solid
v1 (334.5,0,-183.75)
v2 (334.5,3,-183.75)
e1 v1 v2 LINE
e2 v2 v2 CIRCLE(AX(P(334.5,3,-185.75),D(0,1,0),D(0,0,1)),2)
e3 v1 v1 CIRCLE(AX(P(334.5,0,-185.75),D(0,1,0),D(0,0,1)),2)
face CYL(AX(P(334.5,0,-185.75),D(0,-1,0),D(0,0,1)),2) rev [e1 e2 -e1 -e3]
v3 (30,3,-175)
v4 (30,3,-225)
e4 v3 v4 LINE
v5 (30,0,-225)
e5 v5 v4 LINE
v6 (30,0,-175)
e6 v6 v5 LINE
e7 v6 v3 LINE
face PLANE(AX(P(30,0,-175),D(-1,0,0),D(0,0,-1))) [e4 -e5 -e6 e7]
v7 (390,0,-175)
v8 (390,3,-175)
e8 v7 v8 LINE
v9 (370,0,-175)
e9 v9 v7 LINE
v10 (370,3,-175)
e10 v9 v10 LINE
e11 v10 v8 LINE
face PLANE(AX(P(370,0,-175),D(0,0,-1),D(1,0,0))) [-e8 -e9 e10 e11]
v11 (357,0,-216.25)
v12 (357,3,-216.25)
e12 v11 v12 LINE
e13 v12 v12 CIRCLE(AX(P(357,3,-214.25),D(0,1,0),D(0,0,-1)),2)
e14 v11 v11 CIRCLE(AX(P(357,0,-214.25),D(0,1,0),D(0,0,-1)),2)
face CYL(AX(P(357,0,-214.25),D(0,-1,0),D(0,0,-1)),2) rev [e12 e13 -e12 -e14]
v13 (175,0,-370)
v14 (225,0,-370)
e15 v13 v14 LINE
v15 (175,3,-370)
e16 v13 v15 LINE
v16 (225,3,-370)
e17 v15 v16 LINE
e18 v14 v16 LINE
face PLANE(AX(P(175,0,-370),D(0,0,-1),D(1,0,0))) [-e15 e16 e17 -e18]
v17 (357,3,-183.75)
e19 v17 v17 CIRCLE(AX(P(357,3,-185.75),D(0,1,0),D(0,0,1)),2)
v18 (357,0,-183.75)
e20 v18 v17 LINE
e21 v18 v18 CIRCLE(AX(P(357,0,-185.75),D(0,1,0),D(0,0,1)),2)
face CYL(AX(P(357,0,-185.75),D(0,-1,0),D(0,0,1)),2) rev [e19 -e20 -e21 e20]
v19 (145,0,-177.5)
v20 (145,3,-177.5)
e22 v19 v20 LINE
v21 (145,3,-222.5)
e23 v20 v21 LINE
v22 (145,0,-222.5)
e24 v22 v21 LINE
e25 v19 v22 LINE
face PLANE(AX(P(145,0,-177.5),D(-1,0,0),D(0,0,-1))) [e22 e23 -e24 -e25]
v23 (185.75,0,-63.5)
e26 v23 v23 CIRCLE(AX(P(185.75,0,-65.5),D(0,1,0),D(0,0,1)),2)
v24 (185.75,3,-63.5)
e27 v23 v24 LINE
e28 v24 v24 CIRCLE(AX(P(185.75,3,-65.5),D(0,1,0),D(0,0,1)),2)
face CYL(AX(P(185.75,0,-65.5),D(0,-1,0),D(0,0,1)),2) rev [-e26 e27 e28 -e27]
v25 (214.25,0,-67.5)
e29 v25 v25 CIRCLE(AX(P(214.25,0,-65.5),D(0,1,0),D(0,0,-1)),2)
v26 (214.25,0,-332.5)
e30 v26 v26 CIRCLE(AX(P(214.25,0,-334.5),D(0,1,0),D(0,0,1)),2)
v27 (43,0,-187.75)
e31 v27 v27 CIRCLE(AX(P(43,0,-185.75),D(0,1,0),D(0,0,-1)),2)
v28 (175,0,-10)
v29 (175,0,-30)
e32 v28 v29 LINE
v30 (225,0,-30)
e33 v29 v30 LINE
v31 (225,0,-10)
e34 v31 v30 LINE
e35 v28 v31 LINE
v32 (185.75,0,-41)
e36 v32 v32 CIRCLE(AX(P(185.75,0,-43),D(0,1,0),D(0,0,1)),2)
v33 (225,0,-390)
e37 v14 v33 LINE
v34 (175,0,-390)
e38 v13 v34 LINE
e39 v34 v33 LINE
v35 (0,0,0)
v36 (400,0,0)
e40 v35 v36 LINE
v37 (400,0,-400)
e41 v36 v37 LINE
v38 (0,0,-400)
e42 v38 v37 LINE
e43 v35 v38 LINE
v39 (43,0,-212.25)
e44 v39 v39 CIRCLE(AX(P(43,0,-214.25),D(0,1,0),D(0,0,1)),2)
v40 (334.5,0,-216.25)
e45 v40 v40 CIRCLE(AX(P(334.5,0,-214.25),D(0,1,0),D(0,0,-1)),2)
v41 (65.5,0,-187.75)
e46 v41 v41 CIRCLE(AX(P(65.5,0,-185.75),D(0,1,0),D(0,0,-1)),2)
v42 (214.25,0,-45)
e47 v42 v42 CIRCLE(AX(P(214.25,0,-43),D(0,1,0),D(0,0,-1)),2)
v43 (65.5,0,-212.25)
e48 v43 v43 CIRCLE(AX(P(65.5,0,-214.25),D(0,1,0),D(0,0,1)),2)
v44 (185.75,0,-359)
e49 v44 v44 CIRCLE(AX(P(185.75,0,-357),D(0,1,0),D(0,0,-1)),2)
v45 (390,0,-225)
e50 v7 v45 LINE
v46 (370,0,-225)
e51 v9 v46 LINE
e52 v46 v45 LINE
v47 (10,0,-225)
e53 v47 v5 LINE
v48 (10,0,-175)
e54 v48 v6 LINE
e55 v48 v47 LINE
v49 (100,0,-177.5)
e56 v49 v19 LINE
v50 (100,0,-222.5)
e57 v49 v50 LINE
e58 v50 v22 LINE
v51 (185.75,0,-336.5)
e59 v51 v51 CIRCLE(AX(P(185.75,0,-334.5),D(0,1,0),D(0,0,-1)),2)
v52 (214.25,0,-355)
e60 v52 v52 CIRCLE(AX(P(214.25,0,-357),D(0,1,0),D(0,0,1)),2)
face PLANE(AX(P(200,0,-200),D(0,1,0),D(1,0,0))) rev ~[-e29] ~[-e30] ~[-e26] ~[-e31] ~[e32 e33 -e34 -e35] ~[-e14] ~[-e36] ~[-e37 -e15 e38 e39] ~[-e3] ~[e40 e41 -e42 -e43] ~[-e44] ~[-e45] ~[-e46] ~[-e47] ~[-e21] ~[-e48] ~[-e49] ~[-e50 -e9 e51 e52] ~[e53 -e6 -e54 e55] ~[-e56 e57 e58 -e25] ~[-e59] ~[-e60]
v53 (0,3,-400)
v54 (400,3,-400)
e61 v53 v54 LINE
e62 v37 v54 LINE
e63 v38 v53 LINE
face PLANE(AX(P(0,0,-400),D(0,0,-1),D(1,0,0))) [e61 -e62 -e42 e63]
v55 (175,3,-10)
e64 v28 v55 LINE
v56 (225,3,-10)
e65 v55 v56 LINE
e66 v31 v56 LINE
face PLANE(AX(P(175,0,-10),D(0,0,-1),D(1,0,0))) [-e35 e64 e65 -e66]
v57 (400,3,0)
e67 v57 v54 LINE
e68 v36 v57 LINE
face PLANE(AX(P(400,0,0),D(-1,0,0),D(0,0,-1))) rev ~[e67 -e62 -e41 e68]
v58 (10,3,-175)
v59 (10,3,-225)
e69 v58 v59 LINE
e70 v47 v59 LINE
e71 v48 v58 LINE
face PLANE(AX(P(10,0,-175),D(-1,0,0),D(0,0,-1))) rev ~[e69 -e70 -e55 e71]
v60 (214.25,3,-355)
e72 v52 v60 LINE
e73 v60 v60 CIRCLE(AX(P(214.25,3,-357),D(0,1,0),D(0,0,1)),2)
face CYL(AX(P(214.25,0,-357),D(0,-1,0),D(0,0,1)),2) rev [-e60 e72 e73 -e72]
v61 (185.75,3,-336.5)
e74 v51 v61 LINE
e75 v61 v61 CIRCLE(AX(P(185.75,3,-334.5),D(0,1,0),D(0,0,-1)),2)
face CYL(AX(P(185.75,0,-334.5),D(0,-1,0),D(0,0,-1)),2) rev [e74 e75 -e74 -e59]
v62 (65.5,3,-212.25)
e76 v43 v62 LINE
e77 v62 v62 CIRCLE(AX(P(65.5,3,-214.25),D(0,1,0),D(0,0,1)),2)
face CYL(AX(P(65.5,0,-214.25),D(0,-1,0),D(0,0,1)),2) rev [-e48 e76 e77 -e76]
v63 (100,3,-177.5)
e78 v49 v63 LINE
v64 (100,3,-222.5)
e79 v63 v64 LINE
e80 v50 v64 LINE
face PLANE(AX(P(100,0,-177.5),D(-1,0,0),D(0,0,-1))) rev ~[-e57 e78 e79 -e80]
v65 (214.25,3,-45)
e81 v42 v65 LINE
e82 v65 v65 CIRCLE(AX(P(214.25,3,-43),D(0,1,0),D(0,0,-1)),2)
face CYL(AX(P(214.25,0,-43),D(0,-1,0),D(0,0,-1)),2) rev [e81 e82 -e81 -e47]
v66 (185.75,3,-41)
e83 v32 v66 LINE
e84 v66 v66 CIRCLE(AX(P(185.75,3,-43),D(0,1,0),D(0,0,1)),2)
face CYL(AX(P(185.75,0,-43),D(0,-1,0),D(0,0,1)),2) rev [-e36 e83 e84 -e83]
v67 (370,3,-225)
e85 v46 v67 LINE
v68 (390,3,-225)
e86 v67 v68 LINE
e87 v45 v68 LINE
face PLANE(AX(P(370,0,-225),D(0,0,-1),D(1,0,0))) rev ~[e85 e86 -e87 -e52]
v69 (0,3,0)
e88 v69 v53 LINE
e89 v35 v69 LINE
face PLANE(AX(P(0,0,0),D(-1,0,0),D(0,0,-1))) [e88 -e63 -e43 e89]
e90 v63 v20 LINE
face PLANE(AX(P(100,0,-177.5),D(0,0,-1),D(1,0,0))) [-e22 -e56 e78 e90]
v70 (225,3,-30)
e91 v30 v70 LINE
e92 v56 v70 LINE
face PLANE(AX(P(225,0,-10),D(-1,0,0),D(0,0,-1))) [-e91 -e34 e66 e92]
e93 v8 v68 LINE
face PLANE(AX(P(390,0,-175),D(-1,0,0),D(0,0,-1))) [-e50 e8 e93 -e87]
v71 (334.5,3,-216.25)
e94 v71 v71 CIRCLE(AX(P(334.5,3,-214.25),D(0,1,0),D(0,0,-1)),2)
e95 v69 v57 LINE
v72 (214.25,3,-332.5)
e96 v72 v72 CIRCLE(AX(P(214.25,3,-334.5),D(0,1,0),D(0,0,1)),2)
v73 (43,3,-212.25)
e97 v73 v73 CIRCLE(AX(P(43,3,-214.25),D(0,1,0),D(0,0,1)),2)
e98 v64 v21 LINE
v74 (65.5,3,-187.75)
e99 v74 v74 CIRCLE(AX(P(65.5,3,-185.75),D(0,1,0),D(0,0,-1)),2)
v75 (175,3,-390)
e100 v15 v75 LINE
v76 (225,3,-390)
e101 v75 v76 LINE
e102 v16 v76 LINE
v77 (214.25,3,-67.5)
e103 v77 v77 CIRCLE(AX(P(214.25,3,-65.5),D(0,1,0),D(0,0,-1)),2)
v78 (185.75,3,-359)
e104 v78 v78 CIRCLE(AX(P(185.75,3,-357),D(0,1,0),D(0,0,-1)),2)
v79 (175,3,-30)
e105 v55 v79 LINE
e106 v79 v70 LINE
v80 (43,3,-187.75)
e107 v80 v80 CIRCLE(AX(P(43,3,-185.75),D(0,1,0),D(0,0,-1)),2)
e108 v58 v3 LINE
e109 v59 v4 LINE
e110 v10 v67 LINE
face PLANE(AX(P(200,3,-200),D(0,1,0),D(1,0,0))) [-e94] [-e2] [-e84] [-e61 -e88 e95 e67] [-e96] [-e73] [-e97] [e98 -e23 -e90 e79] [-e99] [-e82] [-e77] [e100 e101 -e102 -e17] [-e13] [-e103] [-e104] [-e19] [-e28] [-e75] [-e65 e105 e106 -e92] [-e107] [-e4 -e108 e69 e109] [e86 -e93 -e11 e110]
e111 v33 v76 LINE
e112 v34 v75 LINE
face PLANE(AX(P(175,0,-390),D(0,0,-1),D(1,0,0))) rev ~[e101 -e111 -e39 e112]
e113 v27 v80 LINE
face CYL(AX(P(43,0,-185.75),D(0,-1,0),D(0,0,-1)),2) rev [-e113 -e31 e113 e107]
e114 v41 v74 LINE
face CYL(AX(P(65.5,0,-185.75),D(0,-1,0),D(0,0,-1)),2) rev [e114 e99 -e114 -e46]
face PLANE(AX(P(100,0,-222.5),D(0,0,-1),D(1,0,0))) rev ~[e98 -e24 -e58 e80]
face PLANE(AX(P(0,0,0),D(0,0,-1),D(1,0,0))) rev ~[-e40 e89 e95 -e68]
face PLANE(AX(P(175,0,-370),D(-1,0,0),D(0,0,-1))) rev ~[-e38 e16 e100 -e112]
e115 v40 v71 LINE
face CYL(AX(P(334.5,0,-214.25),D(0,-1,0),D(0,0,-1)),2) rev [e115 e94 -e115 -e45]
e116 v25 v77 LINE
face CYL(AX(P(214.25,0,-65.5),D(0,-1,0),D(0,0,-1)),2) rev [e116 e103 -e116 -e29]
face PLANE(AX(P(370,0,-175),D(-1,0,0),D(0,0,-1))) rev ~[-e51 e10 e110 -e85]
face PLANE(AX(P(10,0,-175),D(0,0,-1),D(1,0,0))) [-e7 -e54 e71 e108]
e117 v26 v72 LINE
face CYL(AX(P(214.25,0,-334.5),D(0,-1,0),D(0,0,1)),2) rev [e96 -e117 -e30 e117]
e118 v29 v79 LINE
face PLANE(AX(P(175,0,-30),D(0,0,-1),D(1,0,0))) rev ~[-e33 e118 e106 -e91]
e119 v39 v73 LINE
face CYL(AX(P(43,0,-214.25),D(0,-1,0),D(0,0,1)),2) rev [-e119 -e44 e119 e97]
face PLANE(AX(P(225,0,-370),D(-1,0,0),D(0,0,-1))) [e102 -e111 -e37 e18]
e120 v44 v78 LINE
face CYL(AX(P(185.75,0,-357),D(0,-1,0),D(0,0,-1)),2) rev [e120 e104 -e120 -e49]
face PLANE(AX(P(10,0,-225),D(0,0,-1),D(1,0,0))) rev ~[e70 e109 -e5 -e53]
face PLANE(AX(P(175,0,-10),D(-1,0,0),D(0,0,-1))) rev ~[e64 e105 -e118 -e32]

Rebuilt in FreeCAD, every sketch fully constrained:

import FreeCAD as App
import Part
import Sketcher
Q = App.Units.Quantity


def add_polygon(sketch, points):
    """Adds a closed chain of lines whose ends are joined by coincident constraints."""
    first, n = sketch.GeometryCount, len(points)
    for a, b in zip(points, points[1:] + points[:1]):
        sketch.addGeometry(Part.LineSegment(App.Vector(*a, 0), App.Vector(*b, 0)), False)
    for i in range(n):
        sketch.addConstraint(Sketcher.Constraint("Coincident", first + i, 2, first + (i + 1) % n, 1))

doc = App.newDocument("Part")
body = doc.addObject("PartDesign::Body", "Body")

sketch1 = body.newObject("Sketcher::SketchObject", "Sketch")
sketch1.AttachmentSupport = (doc.getObject("XZ_Plane"), [""])
sketch1.MapMode = "FlatFace"
add_polygon(sketch1, [(0, -400), (0, 0), (400, 0), (400, -400)])
sketch1.addGeometry(Part.Circle(App.Vector(185.8, -43, 0), App.Vector(0, 0, 1), 2), False)
sketch1.addGeometry(Part.Circle(App.Vector(185.8, -65.5, 0), App.Vector(0, 0, 1), 2), False)
sketch1.addGeometry(Part.Circle(App.Vector(43, -185.8, 0), App.Vector(0, 0, 1), 2), False)
sketch1.addGeometry(Part.Circle(App.Vector(65.5, -185.8, 0), App.Vector(0, 0, 1), 2), False)
add_polygon(sketch1, [(225, -10), (175, -10), (175, -30), (225, -30)])
sketch1.addGeometry(Part.Circle(App.Vector(214.2, -43, 0), App.Vector(0, 0, 1), 2), False)
sketch1.addGeometry(Part.Circle(App.Vector(214.2, -65.5, 0), App.Vector(0, 0, 1), 2), False)
sketch1.addGeometry(Part.Circle(App.Vector(334.5, -185.8, 0), App.Vector(0, 0, 1), 2), False)
sketch1.addGeometry(Part.Circle(App.Vector(357, -185.8, 0), App.Vector(0, 0, 1), 2), False)
add_polygon(sketch1, [(30, -175), (10, -175), (10, -225), (30, -225)])
sketch1.addGeometry(Part.Circle(App.Vector(43, -214.2, 0), App.Vector(0, 0, 1), 2), False)
sketch1.addGeometry(Part.Circle(App.Vector(65.5, -214.2, 0), App.Vector(0, 0, 1), 2), False)
add_polygon(sketch1, [(145, -177.5), (100, -177.5), (100, -222.5), (145, -222.5)])
sketch1.addGeometry(Part.Circle(App.Vector(185.8, -334.5, 0), App.Vector(0, 0, 1), 2), False)
sketch1.addGeometry(Part.Circle(App.Vector(185.8, -357, 0), App.Vector(0, 0, 1), 2), False)
sketch1.addGeometry(Part.Circle(App.Vector(334.5, -214.2, 0), App.Vector(0, 0, 1), 2), False)
sketch1.addGeometry(Part.Circle(App.Vector(357, -214.2, 0), App.Vector(0, 0, 1), 2), False)
add_polygon(sketch1, [(390, -175), (370, -175), (370, -225), (390, -225)])
sketch1.addGeometry(Part.Circle(App.Vector(214.2, -334.5, 0), App.Vector(0, 0, 1), 2), False)
sketch1.addGeometry(Part.Circle(App.Vector(214.2, -357, 0), App.Vector(0, 0, 1), 2), False)
add_polygon(sketch1, [(225, -370), (175, -370), (175, -390), (225, -390)])
sketch1.addConstraint([
    Sketcher.Constraint("Vertical", 0),
    Sketcher.Constraint("Horizontal", 1),
    Sketcher.Constraint("Vertical", 2),
    Sketcher.Constraint("Horizontal", 3),
    Sketcher.Constraint("Horizontal", 8),
    Sketcher.Constraint("Vertical", 9),
    Sketcher.Constraint("Horizontal", 10),
    Sketcher.Constraint("Vertical", 11),
    Sketcher.Constraint("Horizontal", 16),
    Sketcher.Constraint("Vertical", 17),
    Sketcher.Constraint("Horizontal", 18),
    Sketcher.Constraint("Vertical", 19),
    Sketcher.Constraint("Horizontal", 22),
    Sketcher.Constraint("Vertical", 23),
    Sketcher.Constraint("Horizontal", 24),
    Sketcher.Constraint("Vertical", 25),
    Sketcher.Constraint("Horizontal", 30),
    Sketcher.Constraint("Vertical", 31),
    Sketcher.Constraint("Horizontal", 32),
    Sketcher.Constraint("Vertical", 33),
    Sketcher.Constraint("Horizontal", 36),
    Sketcher.Constraint("Vertical", 37),
    Sketcher.Constraint("Horizontal", 38),
    Sketcher.Constraint("Vertical", 39),
    Sketcher.Constraint("Coincident", 0, 2, -1, 1),
    Sketcher.Constraint("Equal", 4, 5),
    Sketcher.Constraint("Equal", 5, 6),
    Sketcher.Constraint("Equal", 6, 7),
    Sketcher.Constraint("Equal", 7, 12),
    Sketcher.Constraint("Equal", 12, 13),
    Sketcher.Constraint("Equal", 13, 14),
    Sketcher.Constraint("Equal", 14, 15),
    Sketcher.Constraint("Equal", 15, 20),
    Sketcher.Constraint("Equal", 20, 21),
    Sketcher.Constraint("Equal", 21, 26),
    Sketcher.Constraint("Equal", 26, 27),
    Sketcher.Constraint("Equal", 27, 28),
    Sketcher.Constraint("Equal", 28, 29),
    Sketcher.Constraint("Equal", 29, 34),
    Sketcher.Constraint("Equal", 34, 35),
    Sketcher.Constraint("Horizontal", 6, 3, 7, 3),
    Sketcher.Constraint("Horizontal", 4, 3, 12, 3),
    Sketcher.Constraint("Horizontal", 5, 3, 13, 3),
    Sketcher.Constraint("Horizontal", 7, 3, 14, 3),
    Sketcher.Constraint("Horizontal", 14, 3, 15, 3),
    Sketcher.Constraint("Horizontal", 20, 3, 21, 3),
    Sketcher.Constraint("Horizontal", 21, 3, 28, 3),
    Sketcher.Constraint("Horizontal", 28, 3, 29, 3),
    Sketcher.Constraint("Horizontal", 26, 3, 34, 3),
    Sketcher.Constraint("Horizontal", 27, 3, 35, 3),
    Sketcher.Constraint("Horizontal", 19, 2, 30, 2),
    Sketcher.Constraint("Horizontal", 18, 2, 31, 2),
    Sketcher.Constraint("Vertical", 4, 3, 5, 3),
    Sketcher.Constraint("Vertical", 12, 3, 13, 3),
    Sketcher.Constraint("Vertical", 6, 3, 20, 3),
    Sketcher.Constraint("Vertical", 7, 3, 21, 3),
    Sketcher.Constraint("Vertical", 5, 3, 26, 3),
    Sketcher.Constraint("Vertical", 26, 3, 27, 3),
    Sketcher.Constraint("Vertical", 14, 3, 28, 3),
    Sketcher.Constraint("Vertical", 15, 3, 29, 3),
    Sketcher.Constraint("Vertical", 13, 3, 34, 3),
    Sketcher.Constraint("Vertical", 34, 3, 35, 3),
    Sketcher.Constraint("Vertical", 9, 2, 36, 2),
    Sketcher.Constraint("Vertical", 11, 2, 38, 2),
    Sketcher.Constraint("Equal", 18, 30),
    Sketcher.Constraint("Equal", 3, 0),
    Sketcher.Constraint("Equal", 32, 9),
    Sketcher.Constraint("Equal", 38, 17),
    Sketcher.Constraint("Equal", 24, 23),
    Sketcher.Constraint("Equal", 11, 37),
    Sketcher.Constraint("Diameter", 4, Q("4 mm")),
    Sketcher.Constraint("DistanceX", 1, 1, 1, 2, Q("400 mm")),
    Sketcher.Constraint("DistanceX", 8, 2, 8, 1, Q("50 mm")),
    Sketcher.Constraint("DistanceX", 16, 2, 16, 1, Q("20 mm")),
    Sketcher.Constraint("DistanceX", 22, 2, 22, 1, Q("45 mm")),
    Sketcher.Constraint("DistanceY", 4, 3, -1, 1, Q("43 mm")),
    Sketcher.Constraint("DistanceX", -1, 1, 6, 3, Q("43 mm")),
    Sketcher.Constraint("DistanceX", -1, 1, 15, 3, Q("357 mm")),
    Sketcher.Constraint("DistanceY", 27, 3, -1, 1, Q("357 mm")),
    Sketcher.Constraint("DistanceX", -1, 1, 8, 2, Q("175 mm")),
    Sketcher.Constraint("DistanceY", 8, 2, -1, 1, Q("10 mm")),
    Sketcher.Constraint("DistanceX", -1, 1, 16, 2, Q("10 mm")),
    Sketcher.Constraint("DistanceY", 16, 2, -1, 1, Q("175 mm")),
    Sketcher.Constraint("DistanceX", -1, 1, 22, 2, Q("100 mm")),
    Sketcher.Constraint("DistanceX", -1, 1, 30, 2, Q("370 mm")),
    Sketcher.Constraint("DistanceY", 36, 2, -1, 1, Q("370 mm")),
    Sketcher.Constraint("DistanceX", 7, 3, 14, 3, Q("269 mm")),
    Sketcher.Constraint("DistanceY", 5, 3, -1, 1, Q("65.5 mm")),
    Sketcher.Constraint("DistanceX", -1, 1, 7, 3, Q("65.5 mm")),
    Sketcher.Constraint("DistanceY", 26, 3, -1, 1, Q("334.5 mm")),
    Sketcher.Constraint("DistanceY", 22, 2, -1, 1, Q("177.5 mm")),
    Sketcher.Constraint("DistanceX", 4, 3, 12, 3, Q("28.5 mm")),
    Sketcher.Constraint("DistanceY", 20, 3, 6, 3, Q("28.5 mm")),
    Sketcher.Constraint("DistanceX", -1, 1, 4, 3, Q("185.75 mm")),
    Sketcher.Constraint("DistanceY", 6, 3, -1, 1, Q("185.75 mm")),
])
pad1 = body.newObject("PartDesign::Pad", "Pad")
pad1.Profile = sketch1
pad1.Length = 3
pad1.Reversed = True

doc.recompute()
